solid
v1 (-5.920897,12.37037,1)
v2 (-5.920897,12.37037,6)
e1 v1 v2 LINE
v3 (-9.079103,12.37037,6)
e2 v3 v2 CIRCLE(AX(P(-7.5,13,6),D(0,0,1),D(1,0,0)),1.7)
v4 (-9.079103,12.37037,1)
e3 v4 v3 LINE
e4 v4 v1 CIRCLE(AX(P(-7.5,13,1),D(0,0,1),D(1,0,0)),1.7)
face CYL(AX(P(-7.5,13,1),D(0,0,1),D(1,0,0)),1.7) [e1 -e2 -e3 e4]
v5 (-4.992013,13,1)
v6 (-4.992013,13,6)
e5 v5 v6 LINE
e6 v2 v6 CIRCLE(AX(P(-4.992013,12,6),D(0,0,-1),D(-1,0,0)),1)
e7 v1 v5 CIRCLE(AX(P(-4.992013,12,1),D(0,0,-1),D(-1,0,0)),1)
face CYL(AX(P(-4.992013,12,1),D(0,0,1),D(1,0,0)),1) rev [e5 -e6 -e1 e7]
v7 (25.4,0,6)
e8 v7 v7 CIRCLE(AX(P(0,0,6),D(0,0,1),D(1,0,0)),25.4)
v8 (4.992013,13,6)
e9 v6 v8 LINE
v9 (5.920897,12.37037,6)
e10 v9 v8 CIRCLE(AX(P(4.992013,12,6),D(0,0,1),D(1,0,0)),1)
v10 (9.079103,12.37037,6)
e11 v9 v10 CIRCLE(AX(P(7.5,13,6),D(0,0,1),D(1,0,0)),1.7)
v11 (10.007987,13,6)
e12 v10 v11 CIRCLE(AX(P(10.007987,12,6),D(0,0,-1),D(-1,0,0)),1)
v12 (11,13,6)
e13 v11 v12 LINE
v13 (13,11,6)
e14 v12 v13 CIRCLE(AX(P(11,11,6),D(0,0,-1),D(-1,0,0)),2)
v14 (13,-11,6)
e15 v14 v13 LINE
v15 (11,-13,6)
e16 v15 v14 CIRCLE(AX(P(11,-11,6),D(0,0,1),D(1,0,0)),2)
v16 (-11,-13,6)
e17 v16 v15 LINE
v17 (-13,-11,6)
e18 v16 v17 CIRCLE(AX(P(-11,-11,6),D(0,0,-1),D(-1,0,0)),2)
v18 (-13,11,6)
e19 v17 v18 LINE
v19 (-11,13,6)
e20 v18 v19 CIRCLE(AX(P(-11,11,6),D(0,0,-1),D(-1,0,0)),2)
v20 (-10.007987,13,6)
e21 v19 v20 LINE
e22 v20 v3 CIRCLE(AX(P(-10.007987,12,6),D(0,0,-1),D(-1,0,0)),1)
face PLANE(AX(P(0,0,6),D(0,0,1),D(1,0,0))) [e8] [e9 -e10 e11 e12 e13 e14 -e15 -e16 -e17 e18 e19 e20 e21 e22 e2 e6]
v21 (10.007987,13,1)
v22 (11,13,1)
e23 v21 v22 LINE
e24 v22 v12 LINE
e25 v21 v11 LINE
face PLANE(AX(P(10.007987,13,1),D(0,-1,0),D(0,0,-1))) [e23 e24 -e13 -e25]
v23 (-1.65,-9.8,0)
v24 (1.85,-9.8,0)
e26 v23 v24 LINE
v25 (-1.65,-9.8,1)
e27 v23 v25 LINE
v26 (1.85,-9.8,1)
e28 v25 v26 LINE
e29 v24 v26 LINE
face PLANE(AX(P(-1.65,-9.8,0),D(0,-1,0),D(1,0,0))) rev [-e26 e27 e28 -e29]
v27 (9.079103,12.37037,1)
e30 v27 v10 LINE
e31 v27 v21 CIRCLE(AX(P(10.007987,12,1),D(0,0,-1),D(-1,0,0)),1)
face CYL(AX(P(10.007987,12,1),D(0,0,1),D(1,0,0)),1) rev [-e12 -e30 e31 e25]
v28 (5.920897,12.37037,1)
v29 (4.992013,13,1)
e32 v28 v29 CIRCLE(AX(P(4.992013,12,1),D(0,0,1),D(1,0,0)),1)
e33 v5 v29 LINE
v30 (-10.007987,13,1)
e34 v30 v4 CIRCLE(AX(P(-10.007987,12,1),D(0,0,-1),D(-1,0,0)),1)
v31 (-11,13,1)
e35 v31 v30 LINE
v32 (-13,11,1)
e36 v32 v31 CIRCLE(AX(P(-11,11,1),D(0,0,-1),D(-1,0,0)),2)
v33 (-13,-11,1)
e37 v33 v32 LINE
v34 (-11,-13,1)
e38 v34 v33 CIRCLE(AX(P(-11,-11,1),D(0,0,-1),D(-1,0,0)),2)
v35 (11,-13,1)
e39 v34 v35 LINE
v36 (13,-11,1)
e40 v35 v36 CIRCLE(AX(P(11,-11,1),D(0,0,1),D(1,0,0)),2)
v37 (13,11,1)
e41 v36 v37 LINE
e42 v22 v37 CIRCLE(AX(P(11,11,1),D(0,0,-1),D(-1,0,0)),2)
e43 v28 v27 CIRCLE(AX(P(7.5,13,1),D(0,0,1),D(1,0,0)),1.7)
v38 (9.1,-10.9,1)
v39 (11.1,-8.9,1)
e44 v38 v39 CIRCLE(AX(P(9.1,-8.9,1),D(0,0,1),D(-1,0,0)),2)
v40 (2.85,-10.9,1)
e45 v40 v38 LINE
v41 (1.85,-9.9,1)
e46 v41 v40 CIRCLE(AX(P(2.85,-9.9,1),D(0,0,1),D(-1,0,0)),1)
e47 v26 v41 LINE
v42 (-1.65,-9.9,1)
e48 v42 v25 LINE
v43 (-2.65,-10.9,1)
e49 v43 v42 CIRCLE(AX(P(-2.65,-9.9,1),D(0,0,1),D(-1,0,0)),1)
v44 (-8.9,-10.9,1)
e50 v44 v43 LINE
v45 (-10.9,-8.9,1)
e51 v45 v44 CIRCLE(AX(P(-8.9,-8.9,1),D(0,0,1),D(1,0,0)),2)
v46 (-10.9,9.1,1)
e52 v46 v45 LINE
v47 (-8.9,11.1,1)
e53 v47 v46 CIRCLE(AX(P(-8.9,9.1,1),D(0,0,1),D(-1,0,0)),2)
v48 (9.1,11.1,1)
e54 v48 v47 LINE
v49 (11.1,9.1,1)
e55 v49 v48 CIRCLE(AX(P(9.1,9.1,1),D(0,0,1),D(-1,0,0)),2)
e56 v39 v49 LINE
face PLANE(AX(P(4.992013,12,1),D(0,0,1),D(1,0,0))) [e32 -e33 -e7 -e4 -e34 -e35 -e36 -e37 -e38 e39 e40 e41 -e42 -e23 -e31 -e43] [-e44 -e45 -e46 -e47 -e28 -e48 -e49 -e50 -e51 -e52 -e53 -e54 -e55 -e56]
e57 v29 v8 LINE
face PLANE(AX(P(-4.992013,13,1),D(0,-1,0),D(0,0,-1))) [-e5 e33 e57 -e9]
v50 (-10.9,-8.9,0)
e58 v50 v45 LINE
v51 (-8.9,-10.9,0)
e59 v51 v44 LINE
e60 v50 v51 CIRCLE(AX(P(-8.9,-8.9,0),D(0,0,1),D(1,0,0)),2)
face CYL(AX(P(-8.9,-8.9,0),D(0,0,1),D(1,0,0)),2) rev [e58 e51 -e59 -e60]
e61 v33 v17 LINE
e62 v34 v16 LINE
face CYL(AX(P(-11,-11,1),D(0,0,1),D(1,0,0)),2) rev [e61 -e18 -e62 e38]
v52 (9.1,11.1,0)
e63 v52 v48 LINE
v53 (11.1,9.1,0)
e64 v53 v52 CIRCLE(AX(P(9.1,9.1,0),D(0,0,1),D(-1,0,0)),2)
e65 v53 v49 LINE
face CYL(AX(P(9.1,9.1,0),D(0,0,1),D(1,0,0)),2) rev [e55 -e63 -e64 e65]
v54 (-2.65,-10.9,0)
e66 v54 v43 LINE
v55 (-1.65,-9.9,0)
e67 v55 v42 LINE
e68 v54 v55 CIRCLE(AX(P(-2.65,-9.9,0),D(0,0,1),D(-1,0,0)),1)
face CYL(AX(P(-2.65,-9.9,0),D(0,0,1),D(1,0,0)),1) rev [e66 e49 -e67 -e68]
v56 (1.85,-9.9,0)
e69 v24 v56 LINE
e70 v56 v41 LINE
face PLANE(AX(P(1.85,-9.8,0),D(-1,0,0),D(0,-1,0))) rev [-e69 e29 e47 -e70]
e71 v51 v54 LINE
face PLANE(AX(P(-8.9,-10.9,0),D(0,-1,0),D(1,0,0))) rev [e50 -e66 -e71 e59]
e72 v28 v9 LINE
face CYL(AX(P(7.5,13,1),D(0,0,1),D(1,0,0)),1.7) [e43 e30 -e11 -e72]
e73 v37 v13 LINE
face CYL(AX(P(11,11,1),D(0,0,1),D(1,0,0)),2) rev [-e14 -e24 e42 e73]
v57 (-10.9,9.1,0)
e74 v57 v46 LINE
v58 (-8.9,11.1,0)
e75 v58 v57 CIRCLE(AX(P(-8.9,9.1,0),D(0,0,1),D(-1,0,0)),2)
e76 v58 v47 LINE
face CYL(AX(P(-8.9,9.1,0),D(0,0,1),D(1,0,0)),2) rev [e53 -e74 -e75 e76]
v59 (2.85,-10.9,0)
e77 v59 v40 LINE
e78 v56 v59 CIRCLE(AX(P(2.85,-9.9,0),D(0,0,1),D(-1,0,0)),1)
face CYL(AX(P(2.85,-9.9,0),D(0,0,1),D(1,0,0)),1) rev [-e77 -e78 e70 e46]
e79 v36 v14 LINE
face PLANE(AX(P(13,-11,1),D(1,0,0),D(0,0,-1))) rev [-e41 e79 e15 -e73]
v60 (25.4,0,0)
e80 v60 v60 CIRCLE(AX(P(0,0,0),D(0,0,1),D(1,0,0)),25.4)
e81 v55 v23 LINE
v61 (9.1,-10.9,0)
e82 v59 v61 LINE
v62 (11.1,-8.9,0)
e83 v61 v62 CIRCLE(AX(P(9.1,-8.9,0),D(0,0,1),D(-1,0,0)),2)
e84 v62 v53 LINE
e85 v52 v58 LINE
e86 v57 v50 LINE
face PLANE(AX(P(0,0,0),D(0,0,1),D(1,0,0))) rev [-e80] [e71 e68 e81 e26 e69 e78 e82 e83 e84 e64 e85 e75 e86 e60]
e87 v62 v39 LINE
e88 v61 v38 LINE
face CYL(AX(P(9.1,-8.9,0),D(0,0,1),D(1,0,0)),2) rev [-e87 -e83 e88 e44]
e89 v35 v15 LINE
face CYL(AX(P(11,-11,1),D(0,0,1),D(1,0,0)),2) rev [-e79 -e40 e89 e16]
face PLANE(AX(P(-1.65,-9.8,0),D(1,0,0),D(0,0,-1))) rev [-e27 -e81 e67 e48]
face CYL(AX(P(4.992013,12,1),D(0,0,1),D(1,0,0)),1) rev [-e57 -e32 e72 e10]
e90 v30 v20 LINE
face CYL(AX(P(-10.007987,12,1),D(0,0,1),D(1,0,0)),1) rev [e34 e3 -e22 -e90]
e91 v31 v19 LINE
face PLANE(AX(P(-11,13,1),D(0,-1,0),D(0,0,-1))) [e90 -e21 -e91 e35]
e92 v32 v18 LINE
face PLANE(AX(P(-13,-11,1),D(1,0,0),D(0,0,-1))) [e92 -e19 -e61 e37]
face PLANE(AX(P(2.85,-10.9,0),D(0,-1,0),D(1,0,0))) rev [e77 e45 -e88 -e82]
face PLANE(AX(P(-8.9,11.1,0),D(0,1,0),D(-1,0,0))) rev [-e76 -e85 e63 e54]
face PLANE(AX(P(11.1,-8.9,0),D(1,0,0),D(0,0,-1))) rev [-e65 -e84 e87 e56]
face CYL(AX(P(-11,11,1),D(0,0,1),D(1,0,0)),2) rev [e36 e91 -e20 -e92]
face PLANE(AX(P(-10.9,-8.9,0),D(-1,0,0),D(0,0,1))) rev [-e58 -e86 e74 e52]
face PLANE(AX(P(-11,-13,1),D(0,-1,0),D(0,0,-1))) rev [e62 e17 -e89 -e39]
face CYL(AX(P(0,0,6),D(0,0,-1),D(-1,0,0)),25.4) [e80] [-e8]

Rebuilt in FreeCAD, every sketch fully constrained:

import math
import FreeCAD as App
import Part
import Sketcher
from FreeCAD import Vector

doc = App.newDocument("Part")
body = doc.addObject("PartDesign::Body", "Body")

# Sketch on XY plane
sketch1 = body.newObject("Sketcher::SketchObject", "Sketch")
sketch1.AttachmentSupport = (doc.getObject("XY_Plane"), [""])
sketch1.MapMode = "FlatFace"
sketch1.addGeometry(Part.Circle(Vector(0, 0, 0), Vector(0, 0, 1), 25), False)
sketch1.addConstraint([
    Sketcher.Constraint("Coincident", 0, 3, -1, 1),
    Sketcher.Constraint("Diameter", 0, 50.8),
])
pad1 = body.newObject("PartDesign::Pad", "Pad")
pad1.Profile = sketch1
pad1.Length = 6

# Sketch on XY plane
sketch2 = body.newObject("Sketcher::SketchObject", "Sketch001")
sketch2.AttachmentSupport = (doc.getObject("XY_Plane"), [""])
sketch2.MapMode = "FlatFace"
sketch2.AttachmentOffset = App.Placement(Vector(0, 0, 6), App.Rotation())
sketch2.addGeometry([
    Part.LineSegment(Vector(-11, -13, 0), Vector(11, -13, 0)),  # 0
    Part.ArcOfCircle(Part.Circle(Vector(11, -11, 0), Vector(0, 0, 1), 2), math.radians(-90), math.radians(0)),  # 1
    Part.LineSegment(Vector(13, -11, 0), Vector(13, 11, 0)),  # 2
    Part.ArcOfCircle(Part.Circle(Vector(11, 11, 0), Vector(0, 0, 1), 2), math.radians(0), math.radians(90)),  # 3
    Part.LineSegment(Vector(11, 13, 0), Vector(10, 13, 0)),  # 4
    Part.ArcOfCircle(Part.Circle(Vector(10, 12, 0), Vector(0, 0, 1), 1), math.radians(90), math.radians(158)),  # 5
    Part.ArcOfCircle(Part.Circle(Vector(7.5, 13, 0), Vector(0, 0, 1), 1.7), math.radians(-158), math.radians(-22)),  # 6
    Part.ArcOfCircle(Part.Circle(Vector(5, 12, 0), Vector(0, 0, 1), 1), math.radians(22), math.radians(90)),  # 7
    Part.LineSegment(Vector(5, 13, 0), Vector(-5, 13, 0)),  # 8
    Part.ArcOfCircle(Part.Circle(Vector(-5, 12, 0), Vector(0, 0, 1), 1), math.radians(90), math.radians(158)),  # 9
    Part.ArcOfCircle(Part.Circle(Vector(-7.5, 13, 0), Vector(0, 0, 1), 1.7), math.radians(-158), math.radians(-22)),  # 10
    Part.ArcOfCircle(Part.Circle(Vector(-10, 12, 0), Vector(0, 0, 1), 1), math.radians(22), math.radians(90)),  # 11
    Part.LineSegment(Vector(-10, 13, 0), Vector(-11, 13, 0)),  # 12
    Part.ArcOfCircle(Part.Circle(Vector(-11, 11, 0), Vector(0, 0, 1), 2), math.radians(90), math.radians(180)),  # 13
    Part.LineSegment(Vector(-13, 11, 0), Vector(-13, -11, 0)),  # 14
    Part.ArcOfCircle(Part.Circle(Vector(-11, -11, 0), Vector(0, 0, 1), 2), math.radians(-180), math.radians(-90)),  # 15
], False)
sketch2.addConstraint([
    Sketcher.Constraint("Tangent", 0, 2, 1, 1),
    Sketcher.Constraint("Tangent", 1, 2, 2, 1),
    Sketcher.Constraint("Tangent", 2, 2, 3, 1),
    Sketcher.Constraint("Tangent", 3, 2, 4, 1),
    Sketcher.Constraint("Tangent", 4, 2, 5, 1),
    Sketcher.Constraint("Tangent", 5, 2, 6, 2),
    Sketcher.Constraint("Tangent", 6, 1, 7, 1),
    Sketcher.Constraint("Tangent", 7, 2, 8, 1),
    Sketcher.Constraint("Tangent", 8, 2, 9, 1),
    Sketcher.Constraint("Tangent", 9, 2, 10, 2),
    Sketcher.Constraint("Tangent", 10, 1, 11, 1),
    Sketcher.Constraint("Tangent", 11, 2, 12, 1),
    Sketcher.Constraint("Tangent", 12, 2, 13, 1),
    Sketcher.Constraint("Tangent", 13, 2, 14, 1),
    Sketcher.Constraint("Tangent", 14, 2, 15, 1),
    Sketcher.Constraint("Tangent", 15, 2, 0, 1),
    Sketcher.Constraint("Horizontal", 0),
    Sketcher.Constraint("Vertical", 2),
    Sketcher.Constraint("Horizontal", 4),
    Sketcher.Constraint("Horizontal", 8),
    Sketcher.Constraint("Horizontal", 12),
    Sketcher.Constraint("Vertical", 14),
    Sketcher.Constraint("Equal", 1, 3),
    Sketcher.Constraint("Equal", 5, 7),
    Sketcher.Constraint("Equal", 7, 9),
    Sketcher.Constraint("Equal", 6, 10),
    Sketcher.Constraint("Equal", 9, 11),
    Sketcher.Constraint("Equal", 3, 13),
    Sketcher.Constraint("Equal", 13, 15),
    Sketcher.Constraint("Symmetric", 1, 3, 13, 3, -1, 1),
    Sketcher.Constraint("Symmetric", 6, 3, 10, 3, -2),
    Sketcher.Constraint("Horizontal", 5, 3, 7, 3),
    Sketcher.Constraint("Horizontal", 9, 3, 11, 3),
    Sketcher.Constraint("Horizontal", 10, 3, 3, 2),
    Sketcher.Constraint("Equal", 0, 2),
    Sketcher.Constraint("Radius", 1, 2.0),
    Sketcher.Constraint("Radius", 5, 1.0),
    Sketcher.Constraint("Radius", 6, 1.7),
    Sketcher.Constraint("DistanceX", 0, 1, 0, 2, 22.0),
    Sketcher.Constraint("DistanceX", 9, 3, 5, 3, 15.0),
])
pocket1 = body.newObject("PartDesign::Pocket", "Pocket")
pocket1.Profile = sketch2
pocket1.Length = 5

# Sketch on XY plane
sketch3 = body.newObject("Sketcher::SketchObject", "Sketch002")
sketch3.AttachmentSupport = (doc.getObject("XY_Plane"), [""])
sketch3.MapMode = "FlatFace"
sketch3.AttachmentOffset = App.Placement(Vector(0, 0, 1), App.Rotation())
sketch3.addGeometry([
    Part.LineSegment(Vector(-10.9, 9.1, 0), Vector(-10.9, -8.9, 0)),  # 0
    Part.ArcOfCircle(Part.Circle(Vector(-8.9, -8.9, 0), Vector(0, 0, 1), 2), math.radians(-180), math.radians(-90)),  # 1
    Part.LineSegment(Vector(-8.9, -10.9, 0), Vector(-2.65, -10.9, 0)),  # 2
    Part.ArcOfCircle(Part.Circle(Vector(-2.65, -9.9, 0), Vector(0, 0, 1), 1), math.radians(-90), math.radians(0)),  # 3
    Part.LineSegment(Vector(-1.65, -9.9, 0), Vector(-1.65, -9.8, 0)),  # 4
    Part.LineSegment(Vector(-1.65, -9.8, 0), Vector(1.85, -9.8, 0)),  # 5
    Part.LineSegment(Vector(1.85, -9.8, 0), Vector(1.85, -9.9, 0)),  # 6
    Part.ArcOfCircle(Part.Circle(Vector(2.85, -9.9, 0), Vector(0, 0, 1), 1), math.radians(-180), math.radians(-90)),  # 7
    Part.LineSegment(Vector(2.85, -10.9, 0), Vector(9.1, -10.9, 0)),  # 8
    Part.ArcOfCircle(Part.Circle(Vector(9.1, -8.9, 0), Vector(0, 0, 1), 2), math.radians(-90), math.radians(0)),  # 9
    Part.LineSegment(Vector(11.1, -8.9, 0), Vector(11.1, 9.1, 0)),  # 10
    Part.ArcOfCircle(Part.Circle(Vector(9.1, 9.1, 0), Vector(0, 0, 1), 2), math.radians(0), math.radians(90)),  # 11
    Part.LineSegment(Vector(9.1, 11.1, 0), Vector(-8.9, 11.1, 0)),  # 12
    Part.ArcOfCircle(Part.Circle(Vector(-8.9, 9.1, 0), Vector(0, 0, 1), 2), math.radians(90), math.radians(180)),  # 13
], False)
sketch3.addConstraint([
    Sketcher.Constraint("Tangent", 0, 2, 1, 1),
    Sketcher.Constraint("Tangent", 1, 2, 2, 1),
    Sketcher.Constraint("Tangent", 2, 2, 3, 1),
    Sketcher.Constraint("Tangent", 3, 2, 4, 1),
    Sketcher.Constraint("Coincident", 4, 2, 5, 1),
    Sketcher.Constraint("Coincident", 5, 2, 6, 1),
    Sketcher.Constraint("Tangent", 6, 2, 7, 1),
    Sketcher.Constraint("Tangent", 7, 2, 8, 1),
    Sketcher.Constraint("Tangent", 8, 2, 9, 1),
    Sketcher.Constraint("Tangent", 9, 2, 10, 1),
    Sketcher.Constraint("Tangent", 10, 2, 11, 1),
    Sketcher.Constraint("Tangent", 11, 2, 12, 1),
    Sketcher.Constraint("Tangent", 12, 2, 13, 1),
    Sketcher.Constraint("Tangent", 13, 2, 0, 1),
    Sketcher.Constraint("Vertical", 0),
    Sketcher.Constraint("Horizontal", 2),
    Sketcher.Constraint("Vertical", 4),
    Sketcher.Constraint("Horizontal", 5),
    Sketcher.Constraint("Vertical", 6),
    Sketcher.Constraint("Horizontal", 8),
    Sketcher.Constraint("Vertical", 10),
    Sketcher.Constraint("Horizontal", 12),
    Sketcher.Constraint("Equal", 3, 7),
    Sketcher.Constraint("Equal", 1, 9),
    Sketcher.Constraint("Equal", 9, 11),
    Sketcher.Constraint("Equal", 11, 13),
    Sketcher.Constraint("Horizontal", 3, 3, 7, 3),
    Sketcher.Constraint("Equal", 2, 8),
    Sketcher.Constraint("Equal", 12, 0),
    Sketcher.Constraint("Radius", 1, 2.0),
    Sketcher.Constraint("Radius", 3, 1.0),
    Sketcher.Constraint("DistanceX", 12, 2, 12, 1, 18.0),
    Sketcher.Constraint("DistanceX", 5, 1, 5, 2, 3.5),
    Sketcher.Constraint("DistanceY", 4, 1, 4, 2, 0.1),
    Sketcher.Constraint("DistanceX", 1, 3, -1, 1, 8.9),
    Sketcher.Constraint("DistanceY", 1, 3, -1, 1, 8.9),
])
pocket2 = body.newObject("PartDesign::Pocket", "Pocket001")
pocket2.Profile = sketch3
pocket2.Type = "ThroughAll"

doc.recompute()
